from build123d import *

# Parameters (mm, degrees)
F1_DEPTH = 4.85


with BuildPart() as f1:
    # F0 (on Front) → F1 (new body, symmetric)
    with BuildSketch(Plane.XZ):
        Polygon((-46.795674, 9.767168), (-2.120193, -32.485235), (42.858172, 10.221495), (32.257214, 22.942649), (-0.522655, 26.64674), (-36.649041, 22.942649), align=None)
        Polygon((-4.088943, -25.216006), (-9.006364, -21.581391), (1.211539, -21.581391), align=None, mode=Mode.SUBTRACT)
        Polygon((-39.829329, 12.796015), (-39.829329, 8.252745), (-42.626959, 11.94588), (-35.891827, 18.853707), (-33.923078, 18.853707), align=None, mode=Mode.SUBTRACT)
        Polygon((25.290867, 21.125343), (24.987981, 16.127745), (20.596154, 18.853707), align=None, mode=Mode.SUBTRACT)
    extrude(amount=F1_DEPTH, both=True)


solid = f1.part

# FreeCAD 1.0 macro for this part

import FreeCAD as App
import Part
import Sketcher
Q = App.Units.Quantity

doc = App.newDocument("Part")
body = doc.addObject("PartDesign::Body", "Body")

# Sketch on XZ plane
sketch1 = doc.addObject("Sketcher::SketchObject", "Sketch")
body.addObject(sketch1)
sketch1.AttachmentSupport = (doc.XZ_Plane, [""])
sketch1.MapMode = "FlatFace"
sketch1.addGeometry([
    Part.LineSegment(App.Vector(-46.8, 9.8, 0), App.Vector(-2.1, -32.5, 0)),  # 0
    Part.LineSegment(App.Vector(-2.1, -32.5, 0), App.Vector(42.9, 10.2, 0)),  # 1
    Part.LineSegment(App.Vector(42.9, 10.2, 0), App.Vector(32.3, 22.9, 0)),  # 2
    Part.LineSegment(App.Vector(32.3, 22.9, 0), App.Vector(-0.5, 26.6, 0)),  # 3
    Part.LineSegment(App.Vector(-0.5, 26.6, 0), App.Vector(-36.6, 22.9, 0)),  # 4
    Part.LineSegment(App.Vector(-36.6, 22.9, 0), App.Vector(-46.8, 9.8, 0)),  # 5
    Part.LineSegment(App.Vector(1.2, -21.6, 0), App.Vector(-4.1, -25.2, 0)),  # 6
    Part.LineSegment(App.Vector(-4.1, -25.2, 0), App.Vector(-9, -21.6, 0)),  # 7
    Part.LineSegment(App.Vector(-9, -21.6, 0), App.Vector(1.2, -21.6, 0)),  # 8
    Part.LineSegment(App.Vector(-33.9, 18.9, 0), App.Vector(-39.8, 12.8, 0)),  # 9
    Part.LineSegment(App.Vector(-39.8, 12.8, 0), App.Vector(-39.8, 8.3, 0)),  # 10
    Part.LineSegment(App.Vector(-39.8, 8.3, 0), App.Vector(-42.6, 11.9, 0)),  # 11
    Part.LineSegment(App.Vector(-42.6, 11.9, 0), App.Vector(-35.9, 18.9, 0)),  # 12
    Part.LineSegment(App.Vector(-35.9, 18.9, 0), App.Vector(-33.9, 18.9, 0)),  # 13
    Part.LineSegment(App.Vector(20.6, 18.9, 0), App.Vector(25.3, 21.1, 0)),  # 14
    Part.LineSegment(App.Vector(25.3, 21.1, 0), App.Vector(25, 16.1, 0)),  # 15
    Part.LineSegment(App.Vector(25, 16.1, 0), App.Vector(20.6, 18.9, 0)),  # 16
], False)
sketch1.addConstraint([
    Sketcher.Constraint("Coincident", 0, 2, 1, 1),
    Sketcher.Constraint("Coincident", 1, 2, 2, 1),
    Sketcher.Constraint("Coincident", 2, 2, 3, 1),
    Sketcher.Constraint("Coincident", 3, 2, 4, 1),
    Sketcher.Constraint("Coincident", 4, 2, 5, 1),
    Sketcher.Constraint("Coincident", 5, 2, 0, 1),
    Sketcher.Constraint("Coincident", 6, 2, 7, 1),
    Sketcher.Constraint("Coincident", 7, 2, 8, 1),
    Sketcher.Constraint("Coincident", 8, 2, 6, 1),
    Sketcher.Constraint("Coincident", 9, 2, 10, 1),
    Sketcher.Constraint("Coincident", 10, 2, 11, 1),
    Sketcher.Constraint("Coincident", 11, 2, 12, 1),
    Sketcher.Constraint("Coincident", 12, 2, 13, 1),
    Sketcher.Constraint("Coincident", 13, 2, 9, 1),
    Sketcher.Constraint("Coincident", 14, 2, 15, 1),
    Sketcher.Constraint("Coincident", 15, 2, 16, 1),
    Sketcher.Constraint("Coincident", 16, 2, 14, 1),
    Sketcher.Constraint("Horizontal", 8),
    Sketcher.Constraint("Vertical", 10),
    Sketcher.Constraint("Horizontal", 13),
    Sketcher.Constraint("Parallel", 9, 12),
    Sketcher.Constraint("Horizontal", 2, 2, 4, 2),
    Sketcher.Constraint("Horizontal", 13, 2, 16, 2),
    Sketcher.Constraint("Distance", 12, Q("9.647802 mm")),
    Sketcher.Constraint("DistanceX", 13, 1, 13, 2, Q("1.968749 mm")),
    Sketcher.Constraint("DistanceY", 10, 2, 10, 1, Q("4.54327 mm")),
    Sketcher.Constraint("DistanceY", 6, 2, 1, 2, Q("35.437501 mm")),
    Sketcher.Constraint("Distance", 0, Q("61.491171 mm")),
    Sketcher.Constraint("Distance", 1, Q("62.023529 mm")),
    Sketcher.Constraint("Distance", 2, Q("16.559229 mm")),
    Sketcher.Constraint("Distance", 6, Q("6.426938 mm")),
    Sketcher.Constraint("Distance", 11, Q("4.633139 mm")),
    Sketcher.Constraint("DistanceX", 8, 1, 8, 2, Q("10.217903 mm")),
    Sketcher.Constraint("DistanceY", -1, 1, 2, 2, Q("22.942649 mm")),
    Sketcher.Constraint("DistanceY", -1, 1, 3, 2, Q("26.64674 mm")),
    Sketcher.Constraint("DistanceX", 4, 2, -1, 1, Q("36.649041 mm")),
    Sketcher.Constraint("DistanceY", 7, 2, -1, 1, Q("21.581391 mm")),
    Sketcher.Constraint("DistanceX", -1, 1, 8, 2, Q("1.211539 mm")),
    Sketcher.Constraint("DistanceX", 9, 2, -1, 1, Q("39.829329 mm")),
    Sketcher.Constraint("DistanceX", 11, 2, -1, 1, Q("42.626959 mm")),
    Sketcher.Constraint("DistanceY", -1, 1, 11, 2, Q("11.94588 mm")),
    Sketcher.Constraint("DistanceX", -1, 1, 15, 2, Q("24.987981 mm")),
    Sketcher.Constraint("DistanceY", 0, 2, 1, 2, Q("42.70673 mm")),
    Sketcher.Constraint("DistanceX", 2, 2, 1, 2, Q("10.600958 mm")),
    Sketcher.Constraint("DistanceX", 3, 2, 2, 2, Q("32.779869 mm")),
    Sketcher.Constraint("DistanceY", 5, 2, 4, 2, Q("13.175481 mm")),
    Sketcher.Constraint("DistanceX", 6, 2, 0, 2, Q("1.96875 mm")),
    Sketcher.Constraint("DistanceX", 3, 2, 14, 2, Q("25.813522 mm")),
    Sketcher.Constraint("DistanceY", 1, 2, 15, 2, Q("5.90625 mm")),
    Sketcher.Constraint("DistanceX", 16, 2, 2, 2, Q("11.66106 mm")),
    Sketcher.Constraint("Distance", 14, Q("5.215425 mm")),
])
pad1 = doc.addObject("PartDesign::Pad", "Pad")
body.addObject(pad1)
pad1.Profile = sketch1
pad1.Length = 9.7
pad1.Midplane = True

doc.recompute()
